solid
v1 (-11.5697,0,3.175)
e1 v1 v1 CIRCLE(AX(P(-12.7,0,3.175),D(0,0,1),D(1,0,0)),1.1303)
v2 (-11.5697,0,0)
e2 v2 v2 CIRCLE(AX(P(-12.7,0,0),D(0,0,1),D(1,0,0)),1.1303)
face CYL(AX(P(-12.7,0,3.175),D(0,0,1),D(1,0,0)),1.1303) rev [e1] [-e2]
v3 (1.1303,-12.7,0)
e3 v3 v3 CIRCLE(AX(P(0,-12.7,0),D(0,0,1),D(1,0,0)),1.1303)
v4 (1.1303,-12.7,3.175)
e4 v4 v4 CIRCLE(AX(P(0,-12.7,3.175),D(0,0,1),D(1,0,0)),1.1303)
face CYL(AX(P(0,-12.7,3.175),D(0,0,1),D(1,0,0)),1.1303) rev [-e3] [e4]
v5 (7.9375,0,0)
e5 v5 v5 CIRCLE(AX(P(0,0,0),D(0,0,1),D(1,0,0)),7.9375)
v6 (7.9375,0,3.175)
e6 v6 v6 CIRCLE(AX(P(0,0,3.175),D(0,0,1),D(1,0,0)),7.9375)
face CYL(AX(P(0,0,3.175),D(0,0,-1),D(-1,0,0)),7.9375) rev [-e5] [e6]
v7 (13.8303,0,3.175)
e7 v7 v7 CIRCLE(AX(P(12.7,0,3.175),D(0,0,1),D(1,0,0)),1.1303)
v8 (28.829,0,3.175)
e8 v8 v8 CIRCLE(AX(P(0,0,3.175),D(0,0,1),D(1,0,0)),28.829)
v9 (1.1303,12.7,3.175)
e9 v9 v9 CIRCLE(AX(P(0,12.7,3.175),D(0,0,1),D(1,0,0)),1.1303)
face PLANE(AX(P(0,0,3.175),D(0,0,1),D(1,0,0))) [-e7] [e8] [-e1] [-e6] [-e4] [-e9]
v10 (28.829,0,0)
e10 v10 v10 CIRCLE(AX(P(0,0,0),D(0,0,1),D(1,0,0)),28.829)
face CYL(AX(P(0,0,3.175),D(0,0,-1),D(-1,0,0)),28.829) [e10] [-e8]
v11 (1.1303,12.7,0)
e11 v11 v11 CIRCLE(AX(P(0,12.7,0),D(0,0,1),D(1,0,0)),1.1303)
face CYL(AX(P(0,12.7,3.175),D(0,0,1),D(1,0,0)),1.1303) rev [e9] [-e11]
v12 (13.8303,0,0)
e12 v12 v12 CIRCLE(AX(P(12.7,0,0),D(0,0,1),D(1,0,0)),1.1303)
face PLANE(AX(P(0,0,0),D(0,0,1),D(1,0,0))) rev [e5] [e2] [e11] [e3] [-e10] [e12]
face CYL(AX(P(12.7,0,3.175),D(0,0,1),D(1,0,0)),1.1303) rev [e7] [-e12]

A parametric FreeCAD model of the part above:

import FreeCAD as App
import Part
import Sketcher
from FreeCAD import Vector
Q = App.Units.Quantity

doc = App.newDocument("Part")
body = doc.addObject("PartDesign::Body", "Body")

# Sketch on XY plane
sketch1 = body.newObject("Sketcher::SketchObject", "Sketch")
sketch1.AttachmentSupport = (doc.getObject("XY_Plane"), [""])
sketch1.MapMode = "FlatFace"
sketch1.addGeometry(Part.Circle(Vector(0, 0, 0), Vector(0, 0, 1), 29), False)
sketch1.addGeometry(Part.Circle(Vector(0, 0, 0), Vector(0, 0, 1), 8), False)
sketch1.addConstraint(Sketcher.Constraint("Coincident", 0, 3, -1, 1))
sketch1.addConstraint(Sketcher.Constraint("Coincident", 1, 3, -1, 1))
sketch1.addConstraint(Sketcher.Constraint("Diameter", 0, Q("2.27 in")))
sketch1.addConstraint(Sketcher.Constraint("Diameter", 1, Q("0.625 in")))
pad1 = body.newObject("PartDesign::Pad", "Pad")
pad1.Profile = sketch1
pad1.Length = Q("0.125 in")

# Sketch on XY plane
sketch2 = body.newObject("Sketcher::SketchObject", "Sketch001")
sketch2.AttachmentSupport = (doc.getObject("XY_Plane"), [""])
sketch2.MapMode = "FlatFace"
sketch2.AttachmentOffset = App.Placement(Vector(0, 0, 0.125 * 25.4), App.Rotation())
sketch2.addGeometry(Part.Circle(Vector(0, 12.7, 0), Vector(0, 0, 1), 1.1), False)
sketch2.addGeometry(Part.Circle(Vector(0, -12.7, 0), Vector(0, 0, 1), 1.1), False)
sketch2.addGeometry(Part.Circle(Vector(12.7, 0, 0), Vector(0, 0, 1), 1.1), False)
sketch2.addGeometry(Part.Circle(Vector(-12.7, 0, 0), Vector(0, 0, 1), 1.1), False)
sketch2.addConstraint(Sketcher.Constraint("Equal", 0, 1))
sketch2.addConstraint(Sketcher.Constraint("Equal", 1, 2))
sketch2.addConstraint(Sketcher.Constraint("Equal", 2, 3))
sketch2.addConstraint(Sketcher.Constraint("Symmetric", 0, 3, 1, 3, -1, 1))
sketch2.addConstraint(Sketcher.Constraint("Symmetric", 2, 3, 3, 3, -1, 1))
sketch2.addConstraint(Sketcher.Constraint("PointOnObject", 0, 3, -2))
sketch2.addConstraint(Sketcher.Constraint("PointOnObject", 2, 3, -1))
sketch2.addConstraint(Sketcher.Constraint("Diameter", 0, Q("0.089 in")))
sketch2.addConstraint(Sketcher.Constraint("DistanceY", 1, 3, 0, 3, Q("1 in")))
sketch2.addConstraint(Sketcher.Constraint("DistanceX", 3, 3, 2, 3, Q("1 in")))
doc.recompute()
hole = body.newObject("PartDesign::Hole", "Hole")
hole.Profile = sketch2
hole.ThreadType = "None"
hole.Diameter = Q("0.089 in")
hole.DepthType = "Dimension"
hole.Depth = 4
hole.DrillPoint = "Angled"
hole.DrillPointAngle = 118

doc.recompute()
